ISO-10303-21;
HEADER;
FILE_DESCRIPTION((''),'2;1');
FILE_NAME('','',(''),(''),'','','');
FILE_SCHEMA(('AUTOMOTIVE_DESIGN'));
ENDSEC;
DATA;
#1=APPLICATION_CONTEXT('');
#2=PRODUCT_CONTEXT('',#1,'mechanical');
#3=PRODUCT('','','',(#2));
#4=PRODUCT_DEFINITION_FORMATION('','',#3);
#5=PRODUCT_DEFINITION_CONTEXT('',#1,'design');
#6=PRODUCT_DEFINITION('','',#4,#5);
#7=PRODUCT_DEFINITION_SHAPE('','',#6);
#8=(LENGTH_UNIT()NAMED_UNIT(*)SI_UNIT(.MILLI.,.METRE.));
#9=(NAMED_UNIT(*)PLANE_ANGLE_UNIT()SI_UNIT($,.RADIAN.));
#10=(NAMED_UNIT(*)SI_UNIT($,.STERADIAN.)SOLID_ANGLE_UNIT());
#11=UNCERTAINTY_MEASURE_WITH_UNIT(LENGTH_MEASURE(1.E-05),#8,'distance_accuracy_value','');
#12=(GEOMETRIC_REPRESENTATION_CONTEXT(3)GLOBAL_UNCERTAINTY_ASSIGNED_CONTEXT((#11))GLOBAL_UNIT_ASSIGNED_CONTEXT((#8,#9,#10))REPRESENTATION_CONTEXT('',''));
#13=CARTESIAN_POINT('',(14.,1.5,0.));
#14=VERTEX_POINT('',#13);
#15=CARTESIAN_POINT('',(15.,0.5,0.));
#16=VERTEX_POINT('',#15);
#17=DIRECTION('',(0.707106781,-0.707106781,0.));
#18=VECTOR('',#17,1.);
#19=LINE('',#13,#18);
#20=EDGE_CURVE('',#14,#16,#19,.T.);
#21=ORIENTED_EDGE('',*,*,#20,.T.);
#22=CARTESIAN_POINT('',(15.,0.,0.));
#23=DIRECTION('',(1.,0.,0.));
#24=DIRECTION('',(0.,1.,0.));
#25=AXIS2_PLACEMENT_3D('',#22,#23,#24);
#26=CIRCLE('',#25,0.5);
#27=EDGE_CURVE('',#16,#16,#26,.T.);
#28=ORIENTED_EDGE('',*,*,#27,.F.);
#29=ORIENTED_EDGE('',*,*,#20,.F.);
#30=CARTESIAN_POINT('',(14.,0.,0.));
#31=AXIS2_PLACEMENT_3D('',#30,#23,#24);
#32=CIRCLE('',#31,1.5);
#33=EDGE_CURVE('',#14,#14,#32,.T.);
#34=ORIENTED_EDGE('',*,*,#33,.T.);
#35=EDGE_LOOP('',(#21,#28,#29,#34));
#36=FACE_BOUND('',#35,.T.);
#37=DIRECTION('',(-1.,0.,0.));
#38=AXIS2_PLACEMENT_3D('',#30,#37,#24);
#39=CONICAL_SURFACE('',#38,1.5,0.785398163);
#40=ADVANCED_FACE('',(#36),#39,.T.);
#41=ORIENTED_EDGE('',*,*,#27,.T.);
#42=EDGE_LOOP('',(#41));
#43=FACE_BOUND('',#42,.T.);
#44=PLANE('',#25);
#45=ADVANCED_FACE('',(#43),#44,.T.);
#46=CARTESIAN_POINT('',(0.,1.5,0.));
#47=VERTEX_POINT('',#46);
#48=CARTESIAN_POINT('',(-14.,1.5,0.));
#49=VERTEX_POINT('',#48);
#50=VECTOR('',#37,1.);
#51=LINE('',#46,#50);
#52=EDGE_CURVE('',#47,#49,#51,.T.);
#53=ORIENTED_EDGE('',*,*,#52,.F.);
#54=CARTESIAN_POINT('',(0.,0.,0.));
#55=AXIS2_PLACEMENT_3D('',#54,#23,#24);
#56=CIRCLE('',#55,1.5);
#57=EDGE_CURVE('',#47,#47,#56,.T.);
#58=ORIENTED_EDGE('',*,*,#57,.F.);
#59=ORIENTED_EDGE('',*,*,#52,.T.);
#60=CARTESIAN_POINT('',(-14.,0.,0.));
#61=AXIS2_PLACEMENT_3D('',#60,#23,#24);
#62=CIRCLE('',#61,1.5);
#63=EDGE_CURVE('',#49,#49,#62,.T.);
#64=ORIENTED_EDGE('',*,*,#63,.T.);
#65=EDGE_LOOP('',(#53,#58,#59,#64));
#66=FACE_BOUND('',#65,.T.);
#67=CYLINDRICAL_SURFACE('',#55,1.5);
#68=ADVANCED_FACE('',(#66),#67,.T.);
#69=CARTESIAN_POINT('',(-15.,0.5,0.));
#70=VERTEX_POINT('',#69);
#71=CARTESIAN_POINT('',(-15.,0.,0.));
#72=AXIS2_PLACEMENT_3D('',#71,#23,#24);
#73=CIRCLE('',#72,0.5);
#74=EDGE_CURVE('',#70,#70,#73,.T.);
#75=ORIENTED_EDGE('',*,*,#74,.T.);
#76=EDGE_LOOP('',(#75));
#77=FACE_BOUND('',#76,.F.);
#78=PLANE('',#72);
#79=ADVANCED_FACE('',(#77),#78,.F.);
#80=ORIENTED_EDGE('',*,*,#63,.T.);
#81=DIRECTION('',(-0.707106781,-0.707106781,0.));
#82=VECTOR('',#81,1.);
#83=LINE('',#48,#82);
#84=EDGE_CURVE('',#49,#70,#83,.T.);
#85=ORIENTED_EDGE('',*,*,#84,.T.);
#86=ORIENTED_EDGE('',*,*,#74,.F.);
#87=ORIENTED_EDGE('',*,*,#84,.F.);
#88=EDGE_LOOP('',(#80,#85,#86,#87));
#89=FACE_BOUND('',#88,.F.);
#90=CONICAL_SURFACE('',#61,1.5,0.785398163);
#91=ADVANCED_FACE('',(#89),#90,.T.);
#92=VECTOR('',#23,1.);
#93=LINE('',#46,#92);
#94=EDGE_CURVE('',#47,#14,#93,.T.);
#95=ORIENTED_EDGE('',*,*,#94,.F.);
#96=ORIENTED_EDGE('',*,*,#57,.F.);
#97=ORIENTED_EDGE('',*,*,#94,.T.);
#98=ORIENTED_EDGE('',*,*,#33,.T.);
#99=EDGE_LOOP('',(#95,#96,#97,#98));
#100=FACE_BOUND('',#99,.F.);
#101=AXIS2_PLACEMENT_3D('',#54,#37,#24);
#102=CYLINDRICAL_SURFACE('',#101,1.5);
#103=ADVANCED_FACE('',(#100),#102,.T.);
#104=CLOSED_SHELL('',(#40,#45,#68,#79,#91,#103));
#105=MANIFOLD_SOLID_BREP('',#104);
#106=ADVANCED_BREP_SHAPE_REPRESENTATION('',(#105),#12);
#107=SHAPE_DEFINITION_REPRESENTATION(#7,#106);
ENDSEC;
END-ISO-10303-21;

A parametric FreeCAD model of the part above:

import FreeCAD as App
import Part
import Sketcher


def edges_at(feature, points):
    """Names of the edges that pass closest to the given points."""
    edges = feature.Shape.Edges
    near = lambda p: min(range(len(edges)), key=lambda i: edges[i].distToShape(Part.Vertex(*p))[0])
    return sorted({f"Edge{near(p) + 1}" for p in points})

doc = App.newDocument("Part")
params = doc.addObject("Spreadsheet::Sheet", "Params")
for row, (alias, value) in enumerate([
    ("sketch1_diameter", "3 mm"),
    ("pad1_length", "30 mm"),
    ("chamfer_size", "1 mm"),
], start=1):
    params.set(f"A{row}", alias)
    params.set(f"B{row}", "=" + value)
    params.setAlias(f"B{row}", alias)

body = doc.addObject("PartDesign::Body", "Body")

# Sketch on YZ plane
sketch1 = body.newObject("Sketcher::SketchObject", "Sketch")
sketch1.AttachmentSupport = (doc.getObject("YZ_Plane"), [""])
sketch1.MapMode = "FlatFace"
sketch1.addGeometry(Part.Circle(App.Vector(0, 0, 0), App.Vector(0, 0, 1), 1.5), False)
sketch1.addConstraint([
    Sketcher.Constraint("Coincident", 0, 3, -1, 1),
    Sketcher.Constraint("Diameter", 0, 3.0),
])
sketch1.setExpression("Constraints[1]", "Params.sketch1_diameter")
pad1 = body.newObject("PartDesign::Pad", "Pad")
pad1.Profile = sketch1
pad1.setExpression("Length", "Params.pad1_length")
pad1.Midplane = True
doc.recompute()

chamfer = body.newObject("PartDesign::Chamfer", "Chamfer")
chamfer.Base = (pad1, edges_at(pad1, [(15, -1.5, 0), (-15, -1.5, 0)]))
chamfer.setExpression("Size", "Params.chamfer_size")

doc.recompute()
